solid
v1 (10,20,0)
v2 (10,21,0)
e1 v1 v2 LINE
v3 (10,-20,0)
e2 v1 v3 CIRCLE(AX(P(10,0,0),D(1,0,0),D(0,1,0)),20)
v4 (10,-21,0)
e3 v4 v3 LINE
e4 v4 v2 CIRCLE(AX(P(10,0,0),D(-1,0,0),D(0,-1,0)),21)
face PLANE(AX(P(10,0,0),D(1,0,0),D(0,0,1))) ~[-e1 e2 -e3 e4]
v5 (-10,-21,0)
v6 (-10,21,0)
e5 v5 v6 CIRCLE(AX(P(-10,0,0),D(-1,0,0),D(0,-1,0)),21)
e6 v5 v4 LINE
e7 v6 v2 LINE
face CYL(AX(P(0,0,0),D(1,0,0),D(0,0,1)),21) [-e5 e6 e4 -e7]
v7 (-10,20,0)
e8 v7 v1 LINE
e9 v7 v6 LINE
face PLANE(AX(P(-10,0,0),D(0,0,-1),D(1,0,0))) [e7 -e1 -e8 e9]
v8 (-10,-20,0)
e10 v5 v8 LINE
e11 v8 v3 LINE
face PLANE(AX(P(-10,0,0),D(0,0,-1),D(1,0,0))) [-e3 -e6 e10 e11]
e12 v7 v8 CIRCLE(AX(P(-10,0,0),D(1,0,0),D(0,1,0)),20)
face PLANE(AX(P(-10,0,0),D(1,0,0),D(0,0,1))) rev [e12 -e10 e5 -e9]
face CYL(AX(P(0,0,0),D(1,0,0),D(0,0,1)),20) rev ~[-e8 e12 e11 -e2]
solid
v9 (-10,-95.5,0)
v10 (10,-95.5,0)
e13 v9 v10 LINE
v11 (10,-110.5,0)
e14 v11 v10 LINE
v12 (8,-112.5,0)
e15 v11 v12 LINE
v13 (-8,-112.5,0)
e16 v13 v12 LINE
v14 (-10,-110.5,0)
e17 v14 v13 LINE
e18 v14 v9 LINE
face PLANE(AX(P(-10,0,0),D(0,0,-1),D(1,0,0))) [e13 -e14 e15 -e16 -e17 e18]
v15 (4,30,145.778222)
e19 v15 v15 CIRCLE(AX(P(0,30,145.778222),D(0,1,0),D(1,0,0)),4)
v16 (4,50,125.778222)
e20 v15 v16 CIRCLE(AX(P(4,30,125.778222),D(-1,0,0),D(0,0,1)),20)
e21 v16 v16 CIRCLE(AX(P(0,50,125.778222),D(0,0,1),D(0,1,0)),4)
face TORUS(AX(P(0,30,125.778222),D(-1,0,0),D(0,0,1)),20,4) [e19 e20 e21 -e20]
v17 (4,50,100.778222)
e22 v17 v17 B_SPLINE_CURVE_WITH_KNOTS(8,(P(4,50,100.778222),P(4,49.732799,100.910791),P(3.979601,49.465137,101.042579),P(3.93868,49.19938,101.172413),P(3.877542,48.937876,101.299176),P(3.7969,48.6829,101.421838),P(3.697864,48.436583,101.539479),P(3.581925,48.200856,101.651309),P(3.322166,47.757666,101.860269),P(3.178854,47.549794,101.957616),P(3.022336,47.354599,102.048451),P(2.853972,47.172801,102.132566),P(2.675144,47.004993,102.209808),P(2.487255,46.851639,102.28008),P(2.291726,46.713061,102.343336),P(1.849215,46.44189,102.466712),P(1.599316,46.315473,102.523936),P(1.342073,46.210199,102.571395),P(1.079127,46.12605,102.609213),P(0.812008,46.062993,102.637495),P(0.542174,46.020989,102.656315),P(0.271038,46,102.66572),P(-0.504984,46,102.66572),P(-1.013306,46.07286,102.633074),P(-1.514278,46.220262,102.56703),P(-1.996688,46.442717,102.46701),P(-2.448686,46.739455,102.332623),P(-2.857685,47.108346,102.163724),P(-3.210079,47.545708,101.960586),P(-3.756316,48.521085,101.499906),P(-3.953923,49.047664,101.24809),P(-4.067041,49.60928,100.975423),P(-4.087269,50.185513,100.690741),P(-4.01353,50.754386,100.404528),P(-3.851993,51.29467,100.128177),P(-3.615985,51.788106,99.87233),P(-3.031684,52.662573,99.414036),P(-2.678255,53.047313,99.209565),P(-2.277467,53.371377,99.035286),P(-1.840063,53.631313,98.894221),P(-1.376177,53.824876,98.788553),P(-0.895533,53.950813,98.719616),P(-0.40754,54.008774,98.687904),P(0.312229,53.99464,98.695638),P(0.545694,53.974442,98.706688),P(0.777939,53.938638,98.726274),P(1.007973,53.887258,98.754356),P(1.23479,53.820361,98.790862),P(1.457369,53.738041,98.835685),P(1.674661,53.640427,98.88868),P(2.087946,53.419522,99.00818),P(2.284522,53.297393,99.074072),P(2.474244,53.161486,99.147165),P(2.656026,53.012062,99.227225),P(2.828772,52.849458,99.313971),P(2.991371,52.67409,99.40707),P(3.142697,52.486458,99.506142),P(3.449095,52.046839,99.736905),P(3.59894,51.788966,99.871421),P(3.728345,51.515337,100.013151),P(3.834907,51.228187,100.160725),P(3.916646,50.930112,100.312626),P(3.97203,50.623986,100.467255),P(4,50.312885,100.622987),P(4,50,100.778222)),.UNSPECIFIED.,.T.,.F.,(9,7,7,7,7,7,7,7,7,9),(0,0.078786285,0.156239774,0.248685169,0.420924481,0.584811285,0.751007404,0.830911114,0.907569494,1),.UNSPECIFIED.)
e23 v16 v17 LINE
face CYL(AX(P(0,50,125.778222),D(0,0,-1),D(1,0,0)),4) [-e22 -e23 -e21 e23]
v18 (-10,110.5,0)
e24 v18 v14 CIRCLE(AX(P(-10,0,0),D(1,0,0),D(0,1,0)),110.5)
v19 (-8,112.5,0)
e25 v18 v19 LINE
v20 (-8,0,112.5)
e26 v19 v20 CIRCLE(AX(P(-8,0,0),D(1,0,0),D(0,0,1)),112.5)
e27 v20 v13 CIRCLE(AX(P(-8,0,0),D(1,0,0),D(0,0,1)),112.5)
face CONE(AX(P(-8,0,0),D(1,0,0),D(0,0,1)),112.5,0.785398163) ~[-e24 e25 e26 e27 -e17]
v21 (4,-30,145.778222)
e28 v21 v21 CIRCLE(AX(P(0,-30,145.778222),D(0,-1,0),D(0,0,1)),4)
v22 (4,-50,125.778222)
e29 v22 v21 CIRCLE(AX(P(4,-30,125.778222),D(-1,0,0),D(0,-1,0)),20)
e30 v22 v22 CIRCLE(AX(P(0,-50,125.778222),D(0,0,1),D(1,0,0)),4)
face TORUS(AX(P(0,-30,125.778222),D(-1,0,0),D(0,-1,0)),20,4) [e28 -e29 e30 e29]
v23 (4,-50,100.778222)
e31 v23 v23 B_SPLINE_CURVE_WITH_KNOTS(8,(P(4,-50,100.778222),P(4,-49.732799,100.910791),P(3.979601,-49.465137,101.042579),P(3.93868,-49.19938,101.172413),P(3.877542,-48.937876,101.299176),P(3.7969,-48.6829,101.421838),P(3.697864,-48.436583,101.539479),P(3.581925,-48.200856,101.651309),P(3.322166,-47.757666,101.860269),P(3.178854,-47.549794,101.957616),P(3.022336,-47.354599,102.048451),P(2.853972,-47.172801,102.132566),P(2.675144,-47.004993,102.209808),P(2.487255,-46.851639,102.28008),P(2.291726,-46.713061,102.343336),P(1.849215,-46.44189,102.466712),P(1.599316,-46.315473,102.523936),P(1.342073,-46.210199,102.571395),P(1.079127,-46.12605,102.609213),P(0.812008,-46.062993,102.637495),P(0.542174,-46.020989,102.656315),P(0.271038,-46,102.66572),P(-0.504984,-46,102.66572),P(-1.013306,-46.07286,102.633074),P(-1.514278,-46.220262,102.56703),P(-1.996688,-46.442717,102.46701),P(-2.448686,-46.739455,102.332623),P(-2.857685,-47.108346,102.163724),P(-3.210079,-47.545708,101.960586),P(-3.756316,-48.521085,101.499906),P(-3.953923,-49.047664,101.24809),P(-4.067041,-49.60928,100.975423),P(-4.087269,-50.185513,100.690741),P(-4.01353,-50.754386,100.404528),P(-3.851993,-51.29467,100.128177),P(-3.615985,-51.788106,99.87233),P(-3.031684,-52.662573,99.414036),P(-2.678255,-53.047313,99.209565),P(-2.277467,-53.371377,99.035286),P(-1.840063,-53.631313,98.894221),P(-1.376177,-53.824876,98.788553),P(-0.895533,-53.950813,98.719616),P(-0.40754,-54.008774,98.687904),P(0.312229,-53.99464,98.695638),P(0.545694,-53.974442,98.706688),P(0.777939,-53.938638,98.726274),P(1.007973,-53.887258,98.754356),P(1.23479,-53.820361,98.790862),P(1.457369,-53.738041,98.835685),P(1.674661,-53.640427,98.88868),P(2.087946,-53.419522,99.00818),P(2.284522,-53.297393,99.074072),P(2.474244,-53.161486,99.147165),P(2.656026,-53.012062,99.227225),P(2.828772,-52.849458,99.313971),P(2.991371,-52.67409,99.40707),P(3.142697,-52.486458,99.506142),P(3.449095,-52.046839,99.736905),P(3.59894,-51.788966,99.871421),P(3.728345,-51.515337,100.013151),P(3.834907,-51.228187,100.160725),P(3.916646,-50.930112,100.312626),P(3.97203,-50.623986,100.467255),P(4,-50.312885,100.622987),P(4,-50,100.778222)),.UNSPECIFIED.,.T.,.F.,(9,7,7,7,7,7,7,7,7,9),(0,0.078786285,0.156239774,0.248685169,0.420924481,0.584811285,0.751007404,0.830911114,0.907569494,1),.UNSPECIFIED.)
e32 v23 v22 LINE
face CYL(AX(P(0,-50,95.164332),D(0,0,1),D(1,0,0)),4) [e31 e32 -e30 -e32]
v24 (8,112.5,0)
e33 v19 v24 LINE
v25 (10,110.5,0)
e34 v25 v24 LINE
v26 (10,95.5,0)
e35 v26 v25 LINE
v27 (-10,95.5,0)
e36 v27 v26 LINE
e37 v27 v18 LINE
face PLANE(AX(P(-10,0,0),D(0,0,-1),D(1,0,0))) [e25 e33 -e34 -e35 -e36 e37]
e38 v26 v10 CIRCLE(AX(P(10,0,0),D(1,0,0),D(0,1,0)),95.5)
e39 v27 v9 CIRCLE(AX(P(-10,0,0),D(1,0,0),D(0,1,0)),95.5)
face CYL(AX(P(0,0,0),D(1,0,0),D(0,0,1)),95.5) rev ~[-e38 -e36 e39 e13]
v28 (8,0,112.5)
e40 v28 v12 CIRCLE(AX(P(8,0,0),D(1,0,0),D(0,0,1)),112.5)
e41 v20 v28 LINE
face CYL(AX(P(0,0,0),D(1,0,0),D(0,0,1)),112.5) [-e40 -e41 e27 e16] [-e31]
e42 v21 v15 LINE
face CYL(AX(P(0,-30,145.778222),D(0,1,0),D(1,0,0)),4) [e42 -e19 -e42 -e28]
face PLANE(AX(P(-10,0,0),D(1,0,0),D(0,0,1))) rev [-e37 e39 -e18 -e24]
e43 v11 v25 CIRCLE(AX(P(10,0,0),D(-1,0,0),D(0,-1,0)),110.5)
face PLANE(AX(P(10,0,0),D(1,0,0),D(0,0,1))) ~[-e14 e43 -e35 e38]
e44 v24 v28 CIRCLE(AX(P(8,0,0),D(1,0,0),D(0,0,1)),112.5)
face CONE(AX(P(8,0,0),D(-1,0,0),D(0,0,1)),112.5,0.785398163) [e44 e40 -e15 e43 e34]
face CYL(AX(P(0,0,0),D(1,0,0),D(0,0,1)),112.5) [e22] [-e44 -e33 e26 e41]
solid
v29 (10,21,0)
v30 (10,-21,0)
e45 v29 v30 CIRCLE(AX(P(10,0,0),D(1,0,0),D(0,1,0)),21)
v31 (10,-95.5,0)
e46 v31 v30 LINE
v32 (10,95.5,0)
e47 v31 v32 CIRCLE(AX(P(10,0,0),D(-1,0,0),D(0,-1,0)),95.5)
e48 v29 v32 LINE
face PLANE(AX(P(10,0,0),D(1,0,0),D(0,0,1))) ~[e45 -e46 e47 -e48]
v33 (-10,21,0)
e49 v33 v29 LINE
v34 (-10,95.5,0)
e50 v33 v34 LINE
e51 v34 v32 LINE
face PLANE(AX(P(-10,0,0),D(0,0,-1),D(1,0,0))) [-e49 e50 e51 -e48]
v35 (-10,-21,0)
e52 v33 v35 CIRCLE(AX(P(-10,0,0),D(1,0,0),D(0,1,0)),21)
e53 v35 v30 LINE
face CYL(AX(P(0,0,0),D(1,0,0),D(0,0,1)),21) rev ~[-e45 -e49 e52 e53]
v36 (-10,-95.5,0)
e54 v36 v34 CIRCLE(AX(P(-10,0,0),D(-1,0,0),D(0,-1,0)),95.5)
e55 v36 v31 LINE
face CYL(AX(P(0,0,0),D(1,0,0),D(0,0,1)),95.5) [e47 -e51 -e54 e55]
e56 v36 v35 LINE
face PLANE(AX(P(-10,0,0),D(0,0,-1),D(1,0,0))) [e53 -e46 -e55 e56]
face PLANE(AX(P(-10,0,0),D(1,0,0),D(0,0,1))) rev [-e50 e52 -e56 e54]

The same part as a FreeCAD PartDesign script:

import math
import FreeCAD as App
import Part
import Sketcher
Q = App.Units.Quantity


def edges_at(feature, points):
    """Names of the edges that pass closest to the given points."""
    edges = feature.Shape.Edges
    near = lambda p: min(range(len(edges)), key=lambda i: edges[i].distToShape(Part.Vertex(*p))[0])
    return sorted({f"Edge{near(p) + 1}" for p in points})


def add_polygon(sketch, points):
    """Adds a closed chain of lines whose ends are joined by coincident constraints."""
    first, n = sketch.GeometryCount, len(points)
    for a, b in zip(points, points[1:] + points[:1]):
        sketch.addGeometry(Part.LineSegment(App.Vector(*a, 0), App.Vector(*b, 0)), False)
    for i in range(n):
        sketch.addConstraint(Sketcher.Constraint("Coincident", first + i, 2, first + (i + 1) % n, 1))

doc = App.newDocument("Part")
body = doc.addObject("PartDesign::Body", "Body")

# Sketch on XZ plane
sketch1 = body.newObject("Sketcher::SketchObject", "Sketch")
sketch1.AttachmentSupport = (doc.getObject("XZ_Plane"), [""])
sketch1.MapMode = "FlatFace"
add_polygon(sketch1, [(-10, 21), (-10, 20), (10, 20), (10, 21)])  # lines 0-3
sketch1.addConstraint([
    Sketcher.Constraint("Vertical", 0),
    Sketcher.Constraint("Horizontal", 1),
    Sketcher.Constraint("Vertical", 2),
    Sketcher.Constraint("Horizontal", 3),
    Sketcher.Constraint("DistanceX", 1, 1, 1, 2, Q("20 mm")),
    Sketcher.Constraint("DistanceY", 0, 2, 0, 1, Q("1 mm")),
    Sketcher.Constraint("DistanceX", 0, 2, -1, 1, Q("10 mm")),
    Sketcher.Constraint("DistanceY", -1, 1, 0, 2, Q("20 mm")),
])
revolution = body.newObject("PartDesign::Revolution", "Revolution")
revolution.Profile = sketch1
revolution.ReferenceAxis = (sketch1, ["H_Axis"])
revolution.Angle = 360
body2 = doc.addObject("PartDesign::Body", "Body001")

# Sketch on XZ plane
sketch2 = body2.newObject("Sketcher::SketchObject", "Sketch001")
sketch2.AttachmentSupport = (doc.getObject("XZ_Plane001"), [""])
sketch2.MapMode = "FlatFace"
add_polygon(sketch2, [(-10, 96), (-10, 21), (10, 21), (10, 96)])  # lines 0-3
sketch2.addConstraint([
    Sketcher.Constraint("Vertical", 0),
    Sketcher.Constraint("Horizontal", 1),
    Sketcher.Constraint("Vertical", 2),
    Sketcher.Constraint("Horizontal", 3),
    Sketcher.Constraint("DistanceX", 1, 1, 1, 2, Q("20 mm")),
    Sketcher.Constraint("DistanceY", 0, 2, 0, 1, Q("74.5 mm")),
    Sketcher.Constraint("DistanceX", 0, 2, -1, 1, Q("10 mm")),
    Sketcher.Constraint("DistanceY", -1, 1, 0, 2, Q("21 mm")),
])
revolution2 = body2.newObject("PartDesign::Revolution", "Revolution001")
revolution2.Profile = sketch2
revolution2.ReferenceAxis = (sketch2, ["H_Axis"])
revolution2.Angle = 360
body3 = doc.addObject("PartDesign::Body", "Body002")

# Sketch on XZ plane
sketch3 = body3.newObject("Sketcher::SketchObject", "Sketch002")
sketch3.AttachmentSupport = (doc.getObject("XZ_Plane002"), [""])
sketch3.MapMode = "FlatFace"
add_polygon(sketch3, [(-10, 112), (-10, 96), (10, 96), (10, 112)])  # lines 0-3
sketch3.addConstraint([
    Sketcher.Constraint("Vertical", 0),
    Sketcher.Constraint("Horizontal", 1),
    Sketcher.Constraint("Vertical", 2),
    Sketcher.Constraint("Horizontal", 3),
    Sketcher.Constraint("DistanceX", 1, 1, 1, 2, Q("20 mm")),
    Sketcher.Constraint("DistanceY", 0, 2, 0, 1, Q("17 mm")),
    Sketcher.Constraint("DistanceX", 0, 2, -1, 1, Q("10 mm")),
    Sketcher.Constraint("DistanceY", -1, 1, 0, 2, Q("95.5 mm")),
])
revolution3 = body3.newObject("PartDesign::Revolution", "Revolution002")
revolution3.Profile = sketch3
revolution3.ReferenceAxis = (sketch3, ["H_Axis"])
revolution3.Angle = 360

# Sketch on XY plane
sketch4 = body3.newObject("Sketcher::SketchObject", "Sketch003")
sketch4.AttachmentSupport = (doc.getObject("XY_Plane002"), [""])
sketch4.MapMode = "FlatFace"
sketch4.AttachmentOffset = App.Placement(App.Vector(0, 0, 95.164332), App.Rotation())
sketch4.addGeometry(Part.Circle(App.Vector(0, -50, 0), App.Vector(0, 0, 1), 4), False)
sketch4.addConstraint([
    Sketcher.Constraint("PointOnObject", 0, 3, -2),
    Sketcher.Constraint("Diameter", 0, Q("8 mm")),
    Sketcher.Constraint("DistanceY", 0, 3, -1, 1, Q("50 mm")),
])

# Sketch on YZ plane
sketch5 = body3.newObject("Sketcher::SketchObject", "Sketch004")
sketch5.AttachmentSupport = (doc.getObject("YZ_Plane002"), [""])
sketch5.MapMode = "FlatFace"
sketch5.addGeometry([
    Part.LineSegment(App.Vector(-50, 95, 0), App.Vector(-50, 126, 0)),  # 0
    Part.ArcOfCircle(Part.Circle(App.Vector(-30, 126, 0), App.Vector(0, 0, 1), 20), math.radians(90), math.radians(180)),  # 1
    Part.LineSegment(App.Vector(-30, 146, 0), App.Vector(30, 146, 0)),  # 2
    Part.ArcOfCircle(Part.Circle(App.Vector(30, 126, 0), App.Vector(0, 0, 1), 20), math.radians(0), math.radians(90)),  # 3
    Part.LineSegment(App.Vector(50, 126, 0), App.Vector(50, 95, 0)),  # 4
], False)
sketch5.addConstraint([
    Sketcher.Constraint("Tangent", 0, 2, 1, 2),
    Sketcher.Constraint("Tangent", 1, 1, 2, 1),
    Sketcher.Constraint("Tangent", 2, 2, 3, 2),
    Sketcher.Constraint("Tangent", 3, 1, 4, 1),
    Sketcher.Constraint("Vertical", 0),
    Sketcher.Constraint("Horizontal", 2),
    Sketcher.Constraint("Vertical", 4),
    Sketcher.Constraint("Equal", 1, 3),
    Sketcher.Constraint("Symmetric", 0, 1, 4, 2, -2),
    Sketcher.Constraint("Radius", 1, Q("20 mm")),
    Sketcher.Constraint("DistanceX", 2, 1, 2, 2, Q("60 mm")),
    Sketcher.Constraint("DistanceY", 0, 1, 0, 2, Q("30.61389 mm")),
    Sketcher.Constraint("DistanceY", -1, 1, 1, 3, Q("125.778222 mm")),
])
doc.recompute()

additivepipe = body3.newObject("PartDesign::AdditivePipe", "AdditivePipe")
additivepipe.Profile = sketch4
additivepipe.Spine = (sketch5, ["Edge1", "Edge2", "Edge3", "Edge4", "Edge5"])
doc.recompute()

chamfer = body3.newObject("PartDesign::Chamfer", "Chamfer")
chamfer.Base = (additivepipe, edges_at(additivepipe, [(10, 0, -112.5), (-10, 0, -112.5)]))
chamfer.Size = 2
body4 = doc.addObject("PartDesign::Body", "Body003")

# Sketch on XZ plane
sketch6 = body4.newObject("Sketcher::SketchObject", "Sketch005")
sketch6.AttachmentSupport = (doc.getObject("XZ_Plane003"), [""])
sketch6.MapMode = "FlatFace"
add_polygon(sketch6, [(-10, 0), (-10, -115), (10, -115), (10, 0)])  # lines 0-3
sketch6.addConstraint([
    Sketcher.Constraint("Vertical", 0),
    Sketcher.Constraint("Horizontal", 1),
    Sketcher.Constraint("Vertical", 2),
    Sketcher.Constraint("Horizontal", 3),
    Sketcher.Constraint("Symmetric", 2, 2, 3, 2, -1, 1),
    Sketcher.Constraint("DistanceX", 1, 1, 1, 2, Q("20 mm")),
    Sketcher.Constraint("DistanceY", 0, 2, 0, 1, Q("115 mm")),
])
pad1 = body4.newObject("PartDesign::Pad", "Pad")
pad1.Profile = sketch6
pad1.Type = "TwoLengths"
pad1.Length = 112.501
pad1.Length2 = 112.501
doc.recompute()

body5 = doc.addObject("PartDesign::Body", "Body004")
body5.BaseFeature = body4
boolean = body.newObject("PartDesign::Boolean", "Boolean")
boolean.Type = "Cut"
boolean.addObjects([body5])
doc.recompute()

body6 = doc.addObject("PartDesign::Body", "Body005")
body6.BaseFeature = body4
boolean2 = body2.newObject("PartDesign::Boolean", "Boolean001")
boolean2.Type = "Cut"
boolean2.addObjects([body6])
doc.recompute()

boolean3 = body3.newObject("PartDesign::Boolean", "Boolean002")
boolean3.Type = "Cut"
boolean3.addObjects([body4])

doc.recompute()
